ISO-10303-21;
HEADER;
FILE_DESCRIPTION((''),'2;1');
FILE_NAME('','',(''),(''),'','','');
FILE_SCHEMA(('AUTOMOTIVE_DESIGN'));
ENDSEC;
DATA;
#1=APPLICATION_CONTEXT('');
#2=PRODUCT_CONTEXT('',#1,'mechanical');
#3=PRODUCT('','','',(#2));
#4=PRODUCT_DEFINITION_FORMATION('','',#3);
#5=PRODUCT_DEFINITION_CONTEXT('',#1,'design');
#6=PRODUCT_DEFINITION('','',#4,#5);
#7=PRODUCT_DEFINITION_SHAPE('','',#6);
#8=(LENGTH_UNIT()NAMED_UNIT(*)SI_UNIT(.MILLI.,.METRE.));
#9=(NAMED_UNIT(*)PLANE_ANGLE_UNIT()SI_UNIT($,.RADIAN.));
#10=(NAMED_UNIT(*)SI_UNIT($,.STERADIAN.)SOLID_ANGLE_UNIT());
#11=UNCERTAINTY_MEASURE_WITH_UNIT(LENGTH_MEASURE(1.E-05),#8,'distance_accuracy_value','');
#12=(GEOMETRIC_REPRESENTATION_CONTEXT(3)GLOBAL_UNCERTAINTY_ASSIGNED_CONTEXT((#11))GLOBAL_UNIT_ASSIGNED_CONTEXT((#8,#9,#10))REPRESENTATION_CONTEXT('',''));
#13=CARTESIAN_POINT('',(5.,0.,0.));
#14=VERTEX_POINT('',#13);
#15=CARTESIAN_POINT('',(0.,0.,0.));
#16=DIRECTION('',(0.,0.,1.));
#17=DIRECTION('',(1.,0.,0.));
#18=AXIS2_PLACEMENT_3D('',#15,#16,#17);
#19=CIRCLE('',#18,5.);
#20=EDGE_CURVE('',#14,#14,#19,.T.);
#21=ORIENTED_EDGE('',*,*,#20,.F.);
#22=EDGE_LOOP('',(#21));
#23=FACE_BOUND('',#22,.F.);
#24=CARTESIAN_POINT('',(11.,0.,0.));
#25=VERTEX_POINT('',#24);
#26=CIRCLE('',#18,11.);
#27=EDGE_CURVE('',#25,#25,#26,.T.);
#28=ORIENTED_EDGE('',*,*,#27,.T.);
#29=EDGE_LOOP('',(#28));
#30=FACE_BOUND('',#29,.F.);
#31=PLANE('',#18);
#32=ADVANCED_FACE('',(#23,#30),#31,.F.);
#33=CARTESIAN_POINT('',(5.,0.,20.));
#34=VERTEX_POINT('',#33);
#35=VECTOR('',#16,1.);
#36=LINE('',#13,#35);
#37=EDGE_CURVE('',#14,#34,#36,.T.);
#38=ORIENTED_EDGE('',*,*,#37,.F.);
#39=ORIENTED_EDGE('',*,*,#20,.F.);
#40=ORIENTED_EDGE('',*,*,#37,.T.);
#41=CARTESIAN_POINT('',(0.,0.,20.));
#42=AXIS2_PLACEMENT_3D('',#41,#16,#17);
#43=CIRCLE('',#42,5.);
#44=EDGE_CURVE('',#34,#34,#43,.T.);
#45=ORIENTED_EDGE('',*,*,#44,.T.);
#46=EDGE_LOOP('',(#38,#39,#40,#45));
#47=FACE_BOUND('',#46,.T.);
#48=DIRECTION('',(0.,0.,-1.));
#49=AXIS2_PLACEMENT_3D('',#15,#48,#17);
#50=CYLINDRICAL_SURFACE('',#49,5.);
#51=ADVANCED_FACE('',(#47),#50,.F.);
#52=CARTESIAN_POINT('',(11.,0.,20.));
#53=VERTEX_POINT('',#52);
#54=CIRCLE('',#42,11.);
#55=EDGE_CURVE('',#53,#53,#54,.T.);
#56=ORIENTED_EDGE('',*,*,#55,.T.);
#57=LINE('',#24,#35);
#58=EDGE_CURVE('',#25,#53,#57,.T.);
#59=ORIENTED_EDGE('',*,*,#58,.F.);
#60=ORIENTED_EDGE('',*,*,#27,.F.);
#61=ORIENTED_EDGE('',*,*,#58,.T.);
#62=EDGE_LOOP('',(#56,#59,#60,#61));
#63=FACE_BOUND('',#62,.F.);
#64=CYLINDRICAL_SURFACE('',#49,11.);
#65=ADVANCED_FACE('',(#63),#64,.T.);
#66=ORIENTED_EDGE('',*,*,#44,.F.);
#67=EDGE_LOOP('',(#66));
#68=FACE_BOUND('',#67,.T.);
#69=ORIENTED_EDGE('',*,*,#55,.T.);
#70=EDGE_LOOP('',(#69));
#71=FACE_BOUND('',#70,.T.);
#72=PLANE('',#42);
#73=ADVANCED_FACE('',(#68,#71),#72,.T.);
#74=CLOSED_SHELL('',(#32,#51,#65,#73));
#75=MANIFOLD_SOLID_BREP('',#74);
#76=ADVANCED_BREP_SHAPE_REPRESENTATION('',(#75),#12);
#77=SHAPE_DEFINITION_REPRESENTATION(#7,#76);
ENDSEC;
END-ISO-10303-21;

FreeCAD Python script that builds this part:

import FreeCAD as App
import Part
import Sketcher
from FreeCAD import Vector
Q = App.Units.Quantity

doc = App.newDocument("Part")
body = doc.addObject("PartDesign::Body", "Body")

# Sketch on XY plane
sketch1 = doc.addObject("Sketcher::SketchObject", "Sketch")
body.addObject(sketch1)
sketch1.AttachmentSupport = (doc.XY_Plane, [""])
sketch1.MapMode = "FlatFace"
sketch1.addGeometry([
    Part.Circle(Vector(0, 0, 0), Vector(0, 0, 1), 11),
    Part.Circle(Vector(0, 0, 0), Vector(0, 0, 1), 5),
], False)
sketch1.addConstraint([
    Sketcher.Constraint("Coincident", 0, 3, -1, 1),
    Sketcher.Constraint("Coincident", 1, 3, -1, 1),
    Sketcher.Constraint("Diameter", 0, Q("22 mm")),
    Sketcher.Constraint("Diameter", 1, Q("10 mm")),
])
pad1 = doc.addObject("PartDesign::Pad", "Pad")
body.addObject(pad1)
pad1.Profile = sketch1
pad1.Length = 20

doc.recompute()
